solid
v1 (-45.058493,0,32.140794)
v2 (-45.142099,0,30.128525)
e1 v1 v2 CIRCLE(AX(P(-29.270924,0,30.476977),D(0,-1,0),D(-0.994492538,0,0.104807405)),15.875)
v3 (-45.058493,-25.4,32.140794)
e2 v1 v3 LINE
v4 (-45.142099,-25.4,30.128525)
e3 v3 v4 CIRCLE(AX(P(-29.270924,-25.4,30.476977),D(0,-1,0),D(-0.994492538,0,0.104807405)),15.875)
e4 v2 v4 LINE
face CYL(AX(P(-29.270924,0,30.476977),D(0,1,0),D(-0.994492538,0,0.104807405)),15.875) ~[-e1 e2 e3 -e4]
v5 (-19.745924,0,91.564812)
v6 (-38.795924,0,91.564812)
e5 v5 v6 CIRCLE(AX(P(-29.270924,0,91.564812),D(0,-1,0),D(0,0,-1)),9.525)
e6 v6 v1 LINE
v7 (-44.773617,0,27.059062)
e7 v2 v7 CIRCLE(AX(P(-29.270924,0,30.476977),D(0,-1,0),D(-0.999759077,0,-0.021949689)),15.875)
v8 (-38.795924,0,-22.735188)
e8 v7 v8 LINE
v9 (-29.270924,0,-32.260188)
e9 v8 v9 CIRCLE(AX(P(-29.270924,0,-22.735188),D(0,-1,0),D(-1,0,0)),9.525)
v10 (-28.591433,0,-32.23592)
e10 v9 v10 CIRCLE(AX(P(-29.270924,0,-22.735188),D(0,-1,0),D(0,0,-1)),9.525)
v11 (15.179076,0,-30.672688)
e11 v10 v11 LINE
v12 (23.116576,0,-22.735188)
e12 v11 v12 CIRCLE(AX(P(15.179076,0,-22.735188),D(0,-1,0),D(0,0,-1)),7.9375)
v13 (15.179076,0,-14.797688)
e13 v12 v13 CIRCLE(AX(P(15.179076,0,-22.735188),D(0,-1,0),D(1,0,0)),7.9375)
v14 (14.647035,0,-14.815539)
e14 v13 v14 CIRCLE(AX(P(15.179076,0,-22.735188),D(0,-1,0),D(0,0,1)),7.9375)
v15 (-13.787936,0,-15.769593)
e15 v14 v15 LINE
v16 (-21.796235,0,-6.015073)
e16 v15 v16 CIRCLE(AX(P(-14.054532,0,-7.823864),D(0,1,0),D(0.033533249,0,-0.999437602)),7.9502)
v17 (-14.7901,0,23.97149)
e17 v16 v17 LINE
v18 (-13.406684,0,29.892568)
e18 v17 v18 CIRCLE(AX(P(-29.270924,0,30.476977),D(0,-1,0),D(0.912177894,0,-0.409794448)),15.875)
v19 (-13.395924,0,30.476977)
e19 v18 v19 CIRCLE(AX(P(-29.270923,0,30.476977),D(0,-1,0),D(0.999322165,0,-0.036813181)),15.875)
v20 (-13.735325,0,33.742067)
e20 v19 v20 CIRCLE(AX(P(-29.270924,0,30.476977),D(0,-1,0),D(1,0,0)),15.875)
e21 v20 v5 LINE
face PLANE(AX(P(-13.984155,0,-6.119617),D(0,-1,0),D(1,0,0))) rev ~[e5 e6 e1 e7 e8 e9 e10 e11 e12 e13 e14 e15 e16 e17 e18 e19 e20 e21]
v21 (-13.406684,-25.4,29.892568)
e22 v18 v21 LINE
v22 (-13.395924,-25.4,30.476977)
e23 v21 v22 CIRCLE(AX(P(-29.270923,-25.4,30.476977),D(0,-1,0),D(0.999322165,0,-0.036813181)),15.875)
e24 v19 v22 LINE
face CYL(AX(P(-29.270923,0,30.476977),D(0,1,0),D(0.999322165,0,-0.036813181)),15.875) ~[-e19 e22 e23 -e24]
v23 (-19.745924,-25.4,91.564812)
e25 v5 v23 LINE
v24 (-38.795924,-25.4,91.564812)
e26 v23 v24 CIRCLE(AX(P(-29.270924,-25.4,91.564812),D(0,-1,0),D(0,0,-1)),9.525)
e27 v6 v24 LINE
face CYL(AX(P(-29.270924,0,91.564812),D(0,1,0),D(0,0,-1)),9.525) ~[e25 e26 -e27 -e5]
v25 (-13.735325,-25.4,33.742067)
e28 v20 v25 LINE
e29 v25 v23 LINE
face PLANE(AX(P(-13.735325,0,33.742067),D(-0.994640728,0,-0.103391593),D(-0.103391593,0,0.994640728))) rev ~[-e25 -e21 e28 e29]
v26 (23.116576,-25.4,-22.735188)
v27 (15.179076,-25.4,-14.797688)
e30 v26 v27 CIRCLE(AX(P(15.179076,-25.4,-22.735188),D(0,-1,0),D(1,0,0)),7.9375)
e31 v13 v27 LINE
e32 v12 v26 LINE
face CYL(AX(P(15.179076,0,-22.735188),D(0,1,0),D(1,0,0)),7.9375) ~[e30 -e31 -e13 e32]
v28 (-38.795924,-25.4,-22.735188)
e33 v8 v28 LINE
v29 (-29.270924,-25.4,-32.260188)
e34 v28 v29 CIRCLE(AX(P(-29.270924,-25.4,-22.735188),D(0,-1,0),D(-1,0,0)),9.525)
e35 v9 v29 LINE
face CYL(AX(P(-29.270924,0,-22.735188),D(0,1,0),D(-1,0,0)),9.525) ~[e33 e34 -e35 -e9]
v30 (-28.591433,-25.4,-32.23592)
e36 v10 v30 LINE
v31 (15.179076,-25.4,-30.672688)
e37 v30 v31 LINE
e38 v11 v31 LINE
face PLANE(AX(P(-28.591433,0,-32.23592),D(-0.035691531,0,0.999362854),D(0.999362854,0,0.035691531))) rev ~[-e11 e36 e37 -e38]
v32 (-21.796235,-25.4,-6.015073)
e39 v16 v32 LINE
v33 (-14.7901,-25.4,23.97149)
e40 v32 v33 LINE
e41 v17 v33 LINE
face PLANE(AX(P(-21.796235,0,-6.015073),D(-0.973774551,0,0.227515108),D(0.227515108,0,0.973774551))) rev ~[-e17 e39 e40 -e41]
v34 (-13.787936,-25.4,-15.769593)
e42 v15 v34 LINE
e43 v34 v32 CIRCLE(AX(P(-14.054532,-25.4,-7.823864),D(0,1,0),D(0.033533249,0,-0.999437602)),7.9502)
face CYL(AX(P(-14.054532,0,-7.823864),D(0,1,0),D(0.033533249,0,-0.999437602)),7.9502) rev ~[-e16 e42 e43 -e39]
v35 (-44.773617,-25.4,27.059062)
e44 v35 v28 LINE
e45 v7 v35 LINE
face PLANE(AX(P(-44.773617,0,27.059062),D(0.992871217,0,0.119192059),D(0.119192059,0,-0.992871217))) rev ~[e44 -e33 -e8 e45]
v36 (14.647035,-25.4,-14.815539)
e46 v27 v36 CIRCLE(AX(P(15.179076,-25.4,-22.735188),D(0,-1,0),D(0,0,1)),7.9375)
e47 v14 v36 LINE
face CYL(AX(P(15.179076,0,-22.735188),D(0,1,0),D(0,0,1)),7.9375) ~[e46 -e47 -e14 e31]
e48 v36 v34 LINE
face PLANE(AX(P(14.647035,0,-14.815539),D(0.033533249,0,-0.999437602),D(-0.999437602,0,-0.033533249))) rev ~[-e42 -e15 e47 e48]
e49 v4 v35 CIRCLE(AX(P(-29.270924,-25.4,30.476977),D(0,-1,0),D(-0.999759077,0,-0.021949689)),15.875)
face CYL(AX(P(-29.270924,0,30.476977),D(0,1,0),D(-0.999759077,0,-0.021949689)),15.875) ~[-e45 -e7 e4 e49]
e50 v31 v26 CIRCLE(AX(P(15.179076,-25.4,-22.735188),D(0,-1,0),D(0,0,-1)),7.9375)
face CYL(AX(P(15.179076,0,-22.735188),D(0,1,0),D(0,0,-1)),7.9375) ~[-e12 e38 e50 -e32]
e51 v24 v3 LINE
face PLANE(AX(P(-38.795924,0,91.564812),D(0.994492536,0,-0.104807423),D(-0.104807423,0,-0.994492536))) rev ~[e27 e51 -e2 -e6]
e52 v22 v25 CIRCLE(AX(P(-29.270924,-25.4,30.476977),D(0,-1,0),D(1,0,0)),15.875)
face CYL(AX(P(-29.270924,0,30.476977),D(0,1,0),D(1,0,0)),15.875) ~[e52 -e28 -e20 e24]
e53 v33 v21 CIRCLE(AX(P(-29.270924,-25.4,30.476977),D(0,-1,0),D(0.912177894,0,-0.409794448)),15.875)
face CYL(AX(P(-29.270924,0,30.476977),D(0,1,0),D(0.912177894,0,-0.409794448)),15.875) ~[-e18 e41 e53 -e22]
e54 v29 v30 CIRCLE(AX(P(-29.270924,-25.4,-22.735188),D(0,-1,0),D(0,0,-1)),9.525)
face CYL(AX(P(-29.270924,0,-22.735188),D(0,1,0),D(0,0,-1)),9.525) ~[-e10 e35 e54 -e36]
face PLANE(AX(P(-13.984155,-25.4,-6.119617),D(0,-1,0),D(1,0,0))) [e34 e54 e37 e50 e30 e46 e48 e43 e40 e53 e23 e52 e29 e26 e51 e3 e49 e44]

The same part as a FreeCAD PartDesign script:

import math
import FreeCAD as App
import Part
import Sketcher
Q = App.Units.Quantity

doc = App.newDocument("Part")
body = doc.addObject("PartDesign::Body", "Body")

sketch1 = body.newObject("Sketcher::SketchObject", "Sketch")
sketch1.AttachmentSupport = (doc.getObject("XZ_Plane"), [""])
sketch1.MapMode = "FlatFace"
sketch1.addGeometry([
    Part.ArcOfCircle(Part.Circle(App.Vector(15.179076, -22.735188, 0), App.Vector(0, 0, 1), 7.9375), math.radians(-90), math.radians(0)),
    Part.ArcOfCircle(Part.Circle(App.Vector(15.179076, -22.735188, 0), App.Vector(0, 0, 1), 7.9375), math.radians(0), math.radians(90)),
    Part.ArcOfCircle(Part.Circle(App.Vector(15.179076, -22.735188, 0), App.Vector(0, 0, 1), 7.9375), math.radians(90), math.radians(93.843348)),
    Part.LineSegment(App.Vector(14.647035, -14.815539, 0), App.Vector(-13.787936, -15.769593, 0)),
    Part.ArcOfCircle(Part.Circle(App.Vector(-14.054532, -7.823864, 0), App.Vector(0, 0, 1), 7.9502), math.radians(166.84918), math.radians(271.921674)),
    Part.LineSegment(App.Vector(-21.796235, -6.015073, 0), App.Vector(-14.7901, 23.97149, 0)),
    Part.ArcOfCircle(Part.Circle(App.Vector(-29.270924, 30.476977, 0), App.Vector(0, 0, 1), 15.875), math.radians(-24.191923), math.radians(-2.109717)),
    Part.ArcOfCircle(Part.Circle(App.Vector(-29.270923, 30.476977, 0), App.Vector(0, 0, 1), 15.875), math.radians(-2.109717), math.radians(0)),
    Part.ArcOfCircle(Part.Circle(App.Vector(-29.270924, 30.476977, 0), App.Vector(0, 0, 1), 15.875), math.radians(0), math.radians(11.869015)),
    Part.LineSegment(App.Vector(-13.735325, 33.742067, 0), App.Vector(-19.745924, 91.564812, 0)),
    Part.ArcOfCircle(Part.Circle(App.Vector(-29.270924, 91.564812, 0), App.Vector(0, 0, 1), 9.525), math.radians(0), math.radians(180)),
    Part.LineSegment(App.Vector(-38.795924, 91.564812, 0), App.Vector(-45.058493, 32.140794, 0)),
    Part.ArcOfCircle(Part.Circle(App.Vector(-29.270924, 30.476977, 0), App.Vector(0, 0, 1), 15.875), math.radians(173.98393), math.radians(181.257726)),
    Part.ArcOfCircle(Part.Circle(App.Vector(-29.270924, 30.476977, 0), App.Vector(0, 0, 1), 15.875), math.radians(-178.742274), math.radians(-167.566773)),
    Part.LineSegment(App.Vector(-44.773617, 27.059062, 0), App.Vector(-38.795924, -22.735188, 0)),
    Part.ArcOfCircle(Part.Circle(App.Vector(-29.270924, -22.735188, 0), App.Vector(0, 0, 1), 9.525), math.radians(180), math.radians(270)),
    Part.ArcOfCircle(Part.Circle(App.Vector(-29.270924, -22.735188, 0), App.Vector(0, 0, 1), 9.525), math.radians(-90), math.radians(-85.909183)),
    Part.LineSegment(App.Vector(-28.591433, -32.23592, 0), App.Vector(15.179076, -30.672688, 0)),
], False)
sketch1.addConstraint([
    Sketcher.Constraint("Tangent", 0, 2, 1, 1),
    Sketcher.Constraint("Tangent", 1, 2, 2, 1),
    Sketcher.Constraint("Coincident", 2, 2, 3, 1),
    Sketcher.Constraint("Tangent", 3, 2, 4, 2),
    Sketcher.Constraint("Tangent", 4, 1, 5, 1),
    Sketcher.Constraint("Coincident", 5, 2, 6, 1),
    Sketcher.Constraint("Tangent", 6, 2, 7, 1),
    Sketcher.Constraint("Tangent", 7, 2, 8, 1),
    Sketcher.Constraint("Coincident", 8, 2, 9, 1),
    Sketcher.Constraint("Coincident", 9, 2, 10, 1),
    Sketcher.Constraint("Coincident", 10, 2, 11, 1),
    Sketcher.Constraint("Tangent", 11, 2, 12, 1),
    Sketcher.Constraint("Tangent", 12, 2, 13, 1),
    Sketcher.Constraint("Coincident", 13, 2, 14, 1),
    Sketcher.Constraint("Coincident", 14, 2, 15, 1),
    Sketcher.Constraint("Tangent", 15, 2, 16, 1),
    Sketcher.Constraint("Coincident", 16, 2, 17, 1),
    Sketcher.Constraint("Coincident", 17, 2, 0, 1),
    Sketcher.Constraint("Coincident", 2, 3, 0, 3),
    Sketcher.Constraint("Coincident", 8, 3, 6, 3),
    Sketcher.Constraint("Coincident", 12, 3, 6, 3),
    Sketcher.Constraint("Equal", 8, 12),
    Sketcher.Constraint("Equal", 12, 13),
    Sketcher.Constraint("Equal", 10, 15),
    Sketcher.Constraint("Equal", 15, 16),
    Sketcher.Constraint("Horizontal", 2, 3, 15, 3),
    Sketcher.Constraint("Horizontal", 16, 3, 0, 2),
    Sketcher.Constraint("Horizontal", 13, 3, 7, 2),
    Sketcher.Constraint("Horizontal", 10, 3, 9, 2),
    Sketcher.Constraint("Horizontal", 9, 2, 10, 2),
    Sketcher.Constraint("Horizontal", 0, 2, 14, 2),
    Sketcher.Constraint("Vertical", 8, 3, 10, 3),
    Sketcher.Constraint("Vertical", 13, 3, 15, 3),
    Sketcher.Constraint("Vertical", 2, 3, 1, 2),
    Sketcher.Constraint("Vertical", 16, 3, 15, 2),
    Sketcher.Constraint("Vertical", 1, 2, 17, 2),
    Sketcher.Constraint("Radius", 0, Q("0.3125 in")),
    Sketcher.Constraint("Radius", 4, Q("0.313 in")),
    Sketcher.Constraint("Radius", 6, Q("0.625 in")),
    Sketcher.Constraint("Radius", 10, Q("0.375 in")),
    Sketcher.Constraint("DistanceY", 0, 3, 10, 3, Q("4.5 in")),
    Sketcher.Constraint("DistanceX", 6, 3, 0, 3, Q("1.75 in")),
    Sketcher.Constraint("DistanceX", 5, 2, -1, 1, Q("14.7901 mm")),
    Sketcher.Constraint("DistanceX", 12, 2, -1, 1, Q("45.142099 mm")),
    Sketcher.Constraint("DistanceX", 4, 1, 3, 2, Q("8.008298 mm")),
    Sketcher.Constraint("DistanceX", 8, 2, 7, 2, Q("0.339402 mm")),
    Sketcher.Constraint("DistanceY", 6, 2, 8, 2, Q("3.8495 mm")),
    Sketcher.Constraint("Distance", 14, Q("50.151771 mm")),
    Sketcher.Constraint("DistanceY", 2, 2, -1, 1, Q("14.815539 mm")),
    Sketcher.Constraint("DistanceY", -1, 1, 5, 2, Q("23.97149 mm")),
    Sketcher.Constraint("DistanceY", 16, 2, -1, 1, Q("32.23592 mm")),
    Sketcher.Constraint("DistanceX", 4, 3, 0, 3, Q("29.233609 mm")),
    Sketcher.Constraint("DistanceY", 4, 3, 6, 3, Q("38.30084 mm")),
    Sketcher.Constraint("DistanceX", 2, 2, 1, 2, Q("0.532041 mm")),
])
pad1 = body.newObject("PartDesign::Pad", "Pad")
pad1.Profile = sketch1
pad1.Length = Q("1 in")

doc.recompute()
